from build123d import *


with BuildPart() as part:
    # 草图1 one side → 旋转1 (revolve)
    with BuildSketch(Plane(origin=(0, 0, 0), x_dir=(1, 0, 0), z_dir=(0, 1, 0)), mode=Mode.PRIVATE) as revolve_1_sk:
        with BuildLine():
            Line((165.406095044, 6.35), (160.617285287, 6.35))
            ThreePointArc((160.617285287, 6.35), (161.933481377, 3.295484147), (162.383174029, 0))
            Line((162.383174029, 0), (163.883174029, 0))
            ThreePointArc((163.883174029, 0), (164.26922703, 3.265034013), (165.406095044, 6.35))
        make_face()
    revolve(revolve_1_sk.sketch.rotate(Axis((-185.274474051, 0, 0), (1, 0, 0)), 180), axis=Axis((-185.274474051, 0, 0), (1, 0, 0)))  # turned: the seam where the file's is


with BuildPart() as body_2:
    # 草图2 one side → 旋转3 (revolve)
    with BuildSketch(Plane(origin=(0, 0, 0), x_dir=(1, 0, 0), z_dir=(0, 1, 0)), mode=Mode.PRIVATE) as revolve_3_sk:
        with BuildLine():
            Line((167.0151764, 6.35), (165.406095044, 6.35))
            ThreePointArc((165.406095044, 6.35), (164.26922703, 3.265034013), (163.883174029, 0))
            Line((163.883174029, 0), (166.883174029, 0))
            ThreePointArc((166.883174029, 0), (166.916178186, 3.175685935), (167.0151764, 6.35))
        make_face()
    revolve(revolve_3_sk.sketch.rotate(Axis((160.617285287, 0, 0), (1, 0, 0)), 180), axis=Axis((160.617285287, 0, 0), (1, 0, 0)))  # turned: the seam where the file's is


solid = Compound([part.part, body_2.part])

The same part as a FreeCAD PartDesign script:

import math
import FreeCAD as App
import Part
import Sketcher
from FreeCAD import Vector
Q = App.Units.Quantity

doc = App.newDocument("Part")
body = doc.addObject("PartDesign::Body", "Body")

sketch1 = body.newObject("Sketcher::SketchObject", "Sketch")
sketch1.AttachmentSupport = (doc.getObject("XZ_Plane"), [""])
sketch1.MapMode = "FlatFace"
sketch1.addGeometry([
    Part.LineSegment(Vector(165.4, -6.3, 0), Vector(160.6, -6.3, 0)),
    Part.ArcOfCircle(Part.Circle(Vector(150.1, 0, 0), Vector(0, 0, 1), 12.3), math.radians(-31), math.radians(0)),
    Part.LineSegment(Vector(162.4, 0, 0), Vector(163.9, 0, 0)),
    Part.ArcOfCircle(Part.Circle(Vector(177.9, 0, 0), Vector(0, 0, 1), 14), math.radians(-180), math.radians(-153)),
], False)
sketch1.addConstraint([
    Sketcher.Constraint("Coincident", 0, 2, 1, 1),
    Sketcher.Constraint("Coincident", 1, 2, 2, 1),
    Sketcher.Constraint("Coincident", 2, 2, 3, 1),
    Sketcher.Constraint("Coincident", 3, 2, 0, 1),
    Sketcher.Constraint("Horizontal", 0),
    Sketcher.Constraint("Horizontal", 2),
    Sketcher.Constraint("PointOnObject", 1, 3, -1),
    Sketcher.Constraint("PointOnObject", 3, 3, -1),
    Sketcher.Constraint("PointOnObject", 1, 2, -1),
    Sketcher.Constraint("Radius", 3, Q("14 mm")),
    Sketcher.Constraint("Radius", 1, Q("12.3 mm")),
    Sketcher.Constraint("DistanceX", 2, 1, 2, 2, Q("1.5 mm")),
    Sketcher.Constraint("DistanceY", 0, 2, -1, 1, Q("6.35 mm")),
    Sketcher.Constraint("DistanceX", -1, 1, 1, 3, Q("150.083174 mm")),
])
revolution = body.newObject("PartDesign::Revolution", "Revolution")
revolution.Profile = sketch1
revolution.ReferenceAxis = (sketch1, ["H_Axis"])
revolution.Angle = 360
body2 = doc.addObject("PartDesign::Body", "Body001")

sketch2 = body2.newObject("Sketcher::SketchObject", "Sketch001")
sketch2.AttachmentSupport = (doc.getObject("XZ_Plane001"), [""])
sketch2.MapMode = "FlatFace"
sketch2.addGeometry([
    Part.LineSegment(Vector(167, -6.3, 0), Vector(165.4, -6.3, 0)),
    Part.ArcOfCircle(Part.Circle(Vector(177.9, 0, 0), Vector(0, 0, 1), 14), math.radians(-180), math.radians(-153)),
    Part.LineSegment(Vector(163.9, 0, 0), Vector(166.9, 0, 0)),
    Part.ArcOfCircle(Part.Circle(Vector(319.7, 0, 0), Vector(0, 0, 1), 152.8), math.radians(180), math.radians(182.38)),
], False)
sketch2.addConstraint([
    Sketcher.Constraint("Coincident", 0, 2, 1, 2),
    Sketcher.Constraint("Coincident", 1, 1, 2, 1),
    Sketcher.Constraint("Coincident", 2, 2, 3, 1),
    Sketcher.Constraint("Coincident", 3, 2, 0, 1),
    Sketcher.Constraint("Horizontal", 0),
    Sketcher.Constraint("Horizontal", 2),
    Sketcher.Constraint("PointOnObject", 1, 3, -1),
    Sketcher.Constraint("PointOnObject", 3, 3, -1),
    Sketcher.Constraint("PointOnObject", 1, 1, -1),
    Sketcher.Constraint("Radius", 1, Q("14 mm")),
    Sketcher.Constraint("Radius", 3, Q("152.8 mm")),
    Sketcher.Constraint("DistanceX", 2, 1, 2, 2, Q("3 mm")),
    Sketcher.Constraint("DistanceY", 0, 2, -1, 1, Q("6.35 mm")),
    Sketcher.Constraint("DistanceX", -1, 1, 1, 3, Q("177.883174 mm")),
])
revolution2 = body2.newObject("PartDesign::Revolution", "Revolution001")
revolution2.Profile = sketch2
revolution2.ReferenceAxis = (sketch2, ["H_Axis"])
revolution2.Angle = 360

doc.recompute()
